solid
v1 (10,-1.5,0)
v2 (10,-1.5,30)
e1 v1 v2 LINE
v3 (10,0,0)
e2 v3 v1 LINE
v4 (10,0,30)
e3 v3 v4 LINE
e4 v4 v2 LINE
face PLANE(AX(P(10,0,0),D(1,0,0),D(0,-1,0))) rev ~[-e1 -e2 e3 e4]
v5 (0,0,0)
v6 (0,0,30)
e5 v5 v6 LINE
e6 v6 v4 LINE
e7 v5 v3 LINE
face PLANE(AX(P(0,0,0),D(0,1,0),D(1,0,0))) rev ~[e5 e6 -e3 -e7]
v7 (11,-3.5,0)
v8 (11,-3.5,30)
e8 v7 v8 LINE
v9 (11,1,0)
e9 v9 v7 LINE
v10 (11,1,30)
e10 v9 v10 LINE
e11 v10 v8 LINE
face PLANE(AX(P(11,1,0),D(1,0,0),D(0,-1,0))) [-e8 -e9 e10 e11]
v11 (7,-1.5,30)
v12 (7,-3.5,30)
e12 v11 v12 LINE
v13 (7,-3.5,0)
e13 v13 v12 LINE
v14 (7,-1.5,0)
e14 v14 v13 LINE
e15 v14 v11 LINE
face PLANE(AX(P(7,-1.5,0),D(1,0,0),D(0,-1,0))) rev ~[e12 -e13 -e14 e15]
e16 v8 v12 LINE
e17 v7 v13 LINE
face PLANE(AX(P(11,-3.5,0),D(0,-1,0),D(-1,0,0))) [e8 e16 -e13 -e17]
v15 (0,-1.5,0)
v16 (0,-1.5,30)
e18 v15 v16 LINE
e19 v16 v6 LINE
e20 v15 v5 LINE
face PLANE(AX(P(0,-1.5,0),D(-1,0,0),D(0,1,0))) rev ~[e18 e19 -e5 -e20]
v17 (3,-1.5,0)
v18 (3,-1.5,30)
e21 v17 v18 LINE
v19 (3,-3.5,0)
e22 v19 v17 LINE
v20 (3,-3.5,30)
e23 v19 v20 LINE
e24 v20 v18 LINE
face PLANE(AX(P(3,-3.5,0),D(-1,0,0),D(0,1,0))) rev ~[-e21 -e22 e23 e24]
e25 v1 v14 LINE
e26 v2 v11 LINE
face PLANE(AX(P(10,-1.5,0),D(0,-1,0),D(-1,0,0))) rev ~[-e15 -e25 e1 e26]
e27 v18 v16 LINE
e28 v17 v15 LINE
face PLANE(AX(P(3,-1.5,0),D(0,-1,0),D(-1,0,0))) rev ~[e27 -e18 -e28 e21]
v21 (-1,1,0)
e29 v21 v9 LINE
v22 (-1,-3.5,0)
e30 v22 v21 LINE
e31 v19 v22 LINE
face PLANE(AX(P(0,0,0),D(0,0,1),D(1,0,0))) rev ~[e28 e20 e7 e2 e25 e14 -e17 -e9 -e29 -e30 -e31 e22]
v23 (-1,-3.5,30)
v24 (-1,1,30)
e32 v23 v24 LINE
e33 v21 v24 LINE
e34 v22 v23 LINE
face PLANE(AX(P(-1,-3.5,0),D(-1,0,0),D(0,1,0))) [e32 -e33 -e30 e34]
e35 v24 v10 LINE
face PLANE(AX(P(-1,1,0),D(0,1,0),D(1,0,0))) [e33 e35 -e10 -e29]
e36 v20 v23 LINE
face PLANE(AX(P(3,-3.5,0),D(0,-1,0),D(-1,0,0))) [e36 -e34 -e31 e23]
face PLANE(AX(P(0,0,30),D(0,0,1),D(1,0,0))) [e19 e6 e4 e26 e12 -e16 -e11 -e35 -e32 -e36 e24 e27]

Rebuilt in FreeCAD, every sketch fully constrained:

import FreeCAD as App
import Part
import Sketcher
from FreeCAD import Vector
Q = App.Units.Quantity


def add_polygon(sketch, points):
    """Adds a closed chain of lines whose ends are joined by coincident constraints."""
    first, n = sketch.GeometryCount, len(points)
    for a, b in zip(points, points[1:] + points[:1]):
        sketch.addGeometry(Part.LineSegment(App.Vector(*a, 0), App.Vector(*b, 0)), False)
    for i in range(n):
        sketch.addConstraint(Sketcher.Constraint("Coincident", first + i, 2, first + (i + 1) % n, 1))

doc = App.newDocument("Part")
body = doc.addObject("PartDesign::Body", "Body")

# Sketch on XY plane
sketch1 = body.newObject("Sketcher::SketchObject", "Sketch")
sketch1.AttachmentSupport = (doc.getObject("XY_Plane"), [""])
sketch1.MapMode = "FlatFace"
add_polygon(sketch1, [(0, -1.5), (0, 0), (10, 0), (10, -1.5), (7, -1.5), (7, -3.5), (11, -3.5), (11, 1), (-1, 1), (-1, -3.5), (3, -3.5), (3, -1.5)])  # lines 0-11
sketch1.addConstraint([
    Sketcher.Constraint("Vertical", 0),
    Sketcher.Constraint("Horizontal", 1),
    Sketcher.Constraint("Vertical", 2),
    Sketcher.Constraint("Horizontal", 3),
    Sketcher.Constraint("Vertical", 4),
    Sketcher.Constraint("Horizontal", 5),
    Sketcher.Constraint("Vertical", 6),
    Sketcher.Constraint("Horizontal", 7),
    Sketcher.Constraint("Vertical", 8),
    Sketcher.Constraint("Horizontal", 9),
    Sketcher.Constraint("Vertical", 10),
    Sketcher.Constraint("Horizontal", 11),
    Sketcher.Constraint("Coincident", 0, 2, -1, 1),
    Sketcher.Constraint("Horizontal", 5, 2, 8, 2),
    Sketcher.Constraint("Horizontal", 3, 2, 10, 2),
    Sketcher.Constraint("Equal", 5, 9),
    Sketcher.Constraint("Equal", 3, 11),
    Sketcher.Constraint("DistanceX", 1, 1, 1, 2, Q("10 mm")),
    Sketcher.Constraint("DistanceX", 3, 2, 3, 1, Q("3 mm")),
    Sketcher.Constraint("DistanceX", 5, 1, 5, 2, Q("4 mm")),
    Sketcher.Constraint("DistanceY", 4, 2, 4, 1, Q("2 mm")),
    Sketcher.Constraint("DistanceY", 0, 1, 0, 2, Q("1.5 mm")),
    Sketcher.Constraint("DistanceY", 6, 1, 6, 2, Q("4.5 mm")),
])
pad1 = body.newObject("PartDesign::Pad", "Pad")
pad1.Profile = sketch1
pad1.Length = 30

doc.recompute()
